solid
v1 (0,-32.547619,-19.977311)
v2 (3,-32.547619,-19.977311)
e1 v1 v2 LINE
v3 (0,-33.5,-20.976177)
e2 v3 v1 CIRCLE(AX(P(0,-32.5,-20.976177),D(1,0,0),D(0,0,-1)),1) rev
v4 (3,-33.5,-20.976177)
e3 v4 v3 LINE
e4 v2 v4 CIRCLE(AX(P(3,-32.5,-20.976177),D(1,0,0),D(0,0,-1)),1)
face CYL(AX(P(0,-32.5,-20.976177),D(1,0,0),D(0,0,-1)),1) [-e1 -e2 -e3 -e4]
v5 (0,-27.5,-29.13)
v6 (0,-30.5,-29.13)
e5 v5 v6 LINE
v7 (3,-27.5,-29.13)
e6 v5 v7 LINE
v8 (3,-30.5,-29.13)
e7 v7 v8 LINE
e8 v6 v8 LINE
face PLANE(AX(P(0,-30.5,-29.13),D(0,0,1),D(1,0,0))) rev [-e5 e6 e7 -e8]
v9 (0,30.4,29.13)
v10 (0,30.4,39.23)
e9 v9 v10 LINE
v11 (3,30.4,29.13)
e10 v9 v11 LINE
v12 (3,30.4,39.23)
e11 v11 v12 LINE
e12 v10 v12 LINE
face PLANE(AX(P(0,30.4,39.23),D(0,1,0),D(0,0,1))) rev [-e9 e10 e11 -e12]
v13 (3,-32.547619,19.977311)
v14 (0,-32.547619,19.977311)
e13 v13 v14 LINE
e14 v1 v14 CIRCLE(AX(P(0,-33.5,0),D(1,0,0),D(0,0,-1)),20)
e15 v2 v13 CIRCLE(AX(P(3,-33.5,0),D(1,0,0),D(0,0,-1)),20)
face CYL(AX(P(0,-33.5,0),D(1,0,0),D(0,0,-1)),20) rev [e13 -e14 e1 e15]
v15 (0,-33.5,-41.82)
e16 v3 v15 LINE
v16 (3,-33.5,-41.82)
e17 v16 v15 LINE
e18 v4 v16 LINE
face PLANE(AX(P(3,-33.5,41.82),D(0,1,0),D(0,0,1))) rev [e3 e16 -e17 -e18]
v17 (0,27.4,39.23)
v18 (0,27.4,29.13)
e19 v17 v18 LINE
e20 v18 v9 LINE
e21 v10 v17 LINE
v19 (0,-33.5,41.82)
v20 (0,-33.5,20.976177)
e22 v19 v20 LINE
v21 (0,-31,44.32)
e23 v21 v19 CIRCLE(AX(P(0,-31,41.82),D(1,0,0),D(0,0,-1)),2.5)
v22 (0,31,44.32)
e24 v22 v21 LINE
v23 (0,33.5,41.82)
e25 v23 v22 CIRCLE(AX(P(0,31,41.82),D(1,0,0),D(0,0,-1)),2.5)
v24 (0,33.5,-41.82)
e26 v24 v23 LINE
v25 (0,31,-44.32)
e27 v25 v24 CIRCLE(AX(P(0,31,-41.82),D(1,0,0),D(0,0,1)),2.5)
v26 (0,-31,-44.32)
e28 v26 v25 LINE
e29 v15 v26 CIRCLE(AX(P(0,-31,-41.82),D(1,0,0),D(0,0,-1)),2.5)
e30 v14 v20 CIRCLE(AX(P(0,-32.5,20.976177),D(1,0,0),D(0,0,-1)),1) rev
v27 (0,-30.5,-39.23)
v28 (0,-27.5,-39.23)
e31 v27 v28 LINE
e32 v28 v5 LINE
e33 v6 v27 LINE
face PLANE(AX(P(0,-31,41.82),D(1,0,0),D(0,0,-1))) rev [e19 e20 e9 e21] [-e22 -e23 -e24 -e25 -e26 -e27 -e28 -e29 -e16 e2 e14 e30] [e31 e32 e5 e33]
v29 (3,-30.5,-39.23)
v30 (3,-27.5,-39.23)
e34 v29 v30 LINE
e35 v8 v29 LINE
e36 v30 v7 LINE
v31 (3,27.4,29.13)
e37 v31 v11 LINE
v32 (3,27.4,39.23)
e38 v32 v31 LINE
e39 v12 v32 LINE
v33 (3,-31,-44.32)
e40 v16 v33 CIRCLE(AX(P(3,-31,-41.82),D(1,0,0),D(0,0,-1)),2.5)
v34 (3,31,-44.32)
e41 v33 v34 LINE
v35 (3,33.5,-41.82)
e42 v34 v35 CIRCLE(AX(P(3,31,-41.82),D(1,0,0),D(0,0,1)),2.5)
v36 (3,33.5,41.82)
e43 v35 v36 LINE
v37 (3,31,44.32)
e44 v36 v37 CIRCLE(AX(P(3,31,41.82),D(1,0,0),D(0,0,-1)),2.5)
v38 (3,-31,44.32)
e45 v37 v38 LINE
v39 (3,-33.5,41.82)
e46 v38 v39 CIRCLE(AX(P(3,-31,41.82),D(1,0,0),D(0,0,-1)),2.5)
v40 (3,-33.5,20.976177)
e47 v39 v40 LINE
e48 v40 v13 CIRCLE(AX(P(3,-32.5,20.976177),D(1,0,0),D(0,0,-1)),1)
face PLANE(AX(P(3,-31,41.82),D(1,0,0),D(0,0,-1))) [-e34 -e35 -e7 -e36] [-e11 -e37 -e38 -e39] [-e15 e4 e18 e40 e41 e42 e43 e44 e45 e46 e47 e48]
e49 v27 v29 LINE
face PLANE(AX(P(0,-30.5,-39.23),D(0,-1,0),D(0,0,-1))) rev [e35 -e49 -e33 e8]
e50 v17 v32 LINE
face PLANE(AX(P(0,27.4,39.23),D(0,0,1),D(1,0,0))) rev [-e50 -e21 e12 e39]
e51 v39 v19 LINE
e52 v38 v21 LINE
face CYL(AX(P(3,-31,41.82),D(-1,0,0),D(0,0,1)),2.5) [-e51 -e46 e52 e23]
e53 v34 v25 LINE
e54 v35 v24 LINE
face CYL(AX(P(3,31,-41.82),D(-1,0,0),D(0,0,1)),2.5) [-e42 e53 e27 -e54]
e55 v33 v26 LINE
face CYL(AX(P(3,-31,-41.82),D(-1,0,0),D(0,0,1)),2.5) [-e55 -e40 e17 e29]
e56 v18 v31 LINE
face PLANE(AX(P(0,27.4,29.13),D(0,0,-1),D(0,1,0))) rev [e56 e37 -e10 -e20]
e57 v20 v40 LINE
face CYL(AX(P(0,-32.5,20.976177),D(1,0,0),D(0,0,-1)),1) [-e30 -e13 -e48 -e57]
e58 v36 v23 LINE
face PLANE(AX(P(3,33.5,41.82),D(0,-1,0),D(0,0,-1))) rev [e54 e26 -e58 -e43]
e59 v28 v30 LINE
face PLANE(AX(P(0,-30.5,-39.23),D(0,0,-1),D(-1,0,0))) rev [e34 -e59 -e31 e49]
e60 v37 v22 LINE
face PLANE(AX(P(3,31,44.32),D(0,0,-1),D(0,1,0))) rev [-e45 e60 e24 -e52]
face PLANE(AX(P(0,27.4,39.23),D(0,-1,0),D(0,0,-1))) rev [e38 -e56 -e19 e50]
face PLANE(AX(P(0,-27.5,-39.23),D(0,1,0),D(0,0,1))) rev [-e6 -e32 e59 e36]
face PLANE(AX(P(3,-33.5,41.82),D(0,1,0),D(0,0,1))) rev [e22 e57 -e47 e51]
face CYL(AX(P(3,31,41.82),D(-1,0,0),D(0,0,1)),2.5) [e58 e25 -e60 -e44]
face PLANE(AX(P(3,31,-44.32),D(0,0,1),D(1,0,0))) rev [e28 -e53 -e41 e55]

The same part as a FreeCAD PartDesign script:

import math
import FreeCAD as App
import Part
import Sketcher


def edges_at(feature, points):
    """Names of the edges that pass closest to the given points."""
    edges = feature.Shape.Edges
    near = lambda p: min(range(len(edges)), key=lambda i: edges[i].distToShape(Part.Vertex(*p))[0])
    return sorted({f"Edge{near(p) + 1}" for p in points})

doc = App.newDocument("Part")
params = doc.addObject("Spreadsheet::Sheet", "Params")
for row, (alias, value) in enumerate([
    ("sketch1_radius", "2.5 mm"),
    ("sketch1_width", "62 mm"),
    ("sketch1_height", "83.64 mm"),
    ("pad1_length", "3 mm"),
    ("sketch2_diameter", "40 mm"),
    ("sketch2_width", "3 mm"),
    ("sketch2_height", "10.1 mm"),
    ("pocket1_length", "6 mm"),
    ("fillet_radius", "1 mm"),
], start=1):
    params.set(f"A{row}", alias)
    params.set(f"B{row}", "=" + value)
    params.setAlias(f"B{row}", alias)

body = doc.addObject("PartDesign::Body", "Body")

# Sketch on YZ plane
sketch1 = body.newObject("Sketcher::SketchObject", "Sketch")
sketch1.AttachmentSupport = (doc.getObject("YZ_Plane"), [""])
sketch1.MapMode = "FlatFace"
sketch1.addGeometry([
    Part.LineSegment(App.Vector(33.5, -41.8, 0), App.Vector(33.5, 41.8, 0)),  # 0
    Part.ArcOfCircle(Part.Circle(App.Vector(31, 41.8, 0), App.Vector(0, 0, 1), 2.5), math.radians(0), math.radians(90)),  # 1
    Part.LineSegment(App.Vector(31, 44.3, 0), App.Vector(-31, 44.3, 0)),  # 2
    Part.ArcOfCircle(Part.Circle(App.Vector(-31, 41.8, 0), App.Vector(0, 0, 1), 2.5), math.radians(90), math.radians(180)),  # 3
    Part.LineSegment(App.Vector(-33.5, 41.8, 0), App.Vector(-33.5, -41.8, 0)),  # 4
    Part.ArcOfCircle(Part.Circle(App.Vector(-31, -41.8, 0), App.Vector(0, 0, 1), 2.5), math.radians(180), math.radians(270)),  # 5
    Part.LineSegment(App.Vector(-31, -44.3, 0), App.Vector(31, -44.3, 0)),  # 6
    Part.ArcOfCircle(Part.Circle(App.Vector(31, -41.8, 0), App.Vector(0, 0, 1), 2.5), math.radians(-90), math.radians(0)),  # 7
], False)
sketch1.addConstraint([
    Sketcher.Constraint("Tangent", 0, 2, 1, 1),
    Sketcher.Constraint("Tangent", 1, 2, 2, 1),
    Sketcher.Constraint("Tangent", 2, 2, 3, 1),
    Sketcher.Constraint("Tangent", 3, 2, 4, 1),
    Sketcher.Constraint("Tangent", 4, 2, 5, 1),
    Sketcher.Constraint("Tangent", 5, 2, 6, 1),
    Sketcher.Constraint("Tangent", 6, 2, 7, 1),
    Sketcher.Constraint("Tangent", 7, 2, 0, 1),
    Sketcher.Constraint("Vertical", 0),
    Sketcher.Constraint("Horizontal", 2),
    Sketcher.Constraint("Vertical", 4),
    Sketcher.Constraint("Horizontal", 6),
    Sketcher.Constraint("Equal", 1, 3),
    Sketcher.Constraint("Equal", 3, 5),
    Sketcher.Constraint("Equal", 5, 7),
    Sketcher.Constraint("Symmetric", 1, 3, 5, 3, -1, 1),
    Sketcher.Constraint("Radius", 1, 2.5),
    Sketcher.Constraint("DistanceX", 2, 2, 2, 1, 62.0),
    Sketcher.Constraint("DistanceY", 0, 1, 0, 2, 83.64),
])
sketch1.setExpression("Constraints[16]", "Params.sketch1_radius")
sketch1.setExpression("Constraints[17]", "Params.sketch1_width")
sketch1.setExpression("Constraints[18]", "Params.sketch1_height")
pad1 = body.newObject("PartDesign::Pad", "Pad")
pad1.Profile = sketch1
pad1.setExpression("Length", "Params.pad1_length")

# Sketch on YZ plane
sketch2 = body.newObject("Sketcher::SketchObject", "Sketch001")
sketch2.AttachmentSupport = (doc.getObject("YZ_Plane"), [""])
sketch2.MapMode = "FlatFace"
sketch2.AttachmentOffset = App.Placement(App.Vector(0, 0, 3), App.Rotation())
sketch2.addGeometry([
    Part.Circle(App.Vector(-33.5, 0, 0), App.Vector(0, 0, 1), 20),  # 0
    Part.LineSegment(App.Vector(-27.5, -29.1, 0), App.Vector(-30.5, -29.1, 0)),  # 1
    Part.LineSegment(App.Vector(-30.5, -29.1, 0), App.Vector(-30.5, -39.2, 0)),  # 2
    Part.LineSegment(App.Vector(-30.5, -39.2, 0), App.Vector(-27.5, -39.2, 0)),  # 3
    Part.LineSegment(App.Vector(-27.5, -39.2, 0), App.Vector(-27.5, -29.1, 0)),  # 4
    Part.LineSegment(App.Vector(30.4, 39.2, 0), App.Vector(27.4, 39.2, 0)),  # 5
    Part.LineSegment(App.Vector(27.4, 39.2, 0), App.Vector(27.4, 29.1, 0)),  # 6
    Part.LineSegment(App.Vector(27.4, 29.1, 0), App.Vector(30.4, 29.1, 0)),  # 7
    Part.LineSegment(App.Vector(30.4, 29.1, 0), App.Vector(30.4, 39.2, 0)),  # 8
], False)
sketch2.addConstraint([
    Sketcher.Constraint("Coincident", 1, 2, 2, 1),
    Sketcher.Constraint("Coincident", 2, 2, 3, 1),
    Sketcher.Constraint("Coincident", 3, 2, 4, 1),
    Sketcher.Constraint("Coincident", 4, 2, 1, 1),
    Sketcher.Constraint("Coincident", 5, 2, 6, 1),
    Sketcher.Constraint("Coincident", 6, 2, 7, 1),
    Sketcher.Constraint("Coincident", 7, 2, 8, 1),
    Sketcher.Constraint("Coincident", 8, 2, 5, 1),
    Sketcher.Constraint("Horizontal", 1),
    Sketcher.Constraint("Vertical", 2),
    Sketcher.Constraint("Horizontal", 3),
    Sketcher.Constraint("Vertical", 4),
    Sketcher.Constraint("Horizontal", 5),
    Sketcher.Constraint("Vertical", 6),
    Sketcher.Constraint("Horizontal", 7),
    Sketcher.Constraint("Vertical", 8),
    Sketcher.Constraint("PointOnObject", 0, 3, -1),
    Sketcher.Constraint("Equal", 3, 5),
    Sketcher.Constraint("Equal", 4, 6),
    Sketcher.Constraint("Diameter", 0, 40.0),
    Sketcher.Constraint("DistanceX", 1, 2, 1, 1, 3.0),
    Sketcher.Constraint("DistanceY", 2, 2, 2, 1, 10.1),
    Sketcher.Constraint("DistanceX", 0, 3, 1, 2, 3.0),
    Sketcher.Constraint("DistanceX", 0, 3, -1, 1, 33.5),
    Sketcher.Constraint("DistanceX", -1, 1, 5, 2, 27.4),
    Sketcher.Constraint("DistanceY", 1, 2, -1, 1, 29.13),
    Sketcher.Constraint("DistanceY", -1, 1, 5, 2, 39.23),
])
sketch2.setExpression("Constraints[19]", "Params.sketch2_diameter")
sketch2.setExpression("Constraints[20]", "Params.sketch2_width")
sketch2.setExpression("Constraints[21]", "Params.sketch2_height")
pocket1 = body.newObject("PartDesign::Pocket", "Pocket")
pocket1.Profile = sketch2
pocket1.setExpression("Length", "Params.pocket1_length")
pocket1.Midplane = True
doc.recompute()

fillet = body.newObject("PartDesign::Fillet", "Fillet")
fillet.Base = (pocket1, edges_at(pocket1, [(1.5, -33.5, 20), (1.5, -33.5, -20)]))
fillet.setExpression("Radius", "Params.fillet_radius")

doc.recompute()
